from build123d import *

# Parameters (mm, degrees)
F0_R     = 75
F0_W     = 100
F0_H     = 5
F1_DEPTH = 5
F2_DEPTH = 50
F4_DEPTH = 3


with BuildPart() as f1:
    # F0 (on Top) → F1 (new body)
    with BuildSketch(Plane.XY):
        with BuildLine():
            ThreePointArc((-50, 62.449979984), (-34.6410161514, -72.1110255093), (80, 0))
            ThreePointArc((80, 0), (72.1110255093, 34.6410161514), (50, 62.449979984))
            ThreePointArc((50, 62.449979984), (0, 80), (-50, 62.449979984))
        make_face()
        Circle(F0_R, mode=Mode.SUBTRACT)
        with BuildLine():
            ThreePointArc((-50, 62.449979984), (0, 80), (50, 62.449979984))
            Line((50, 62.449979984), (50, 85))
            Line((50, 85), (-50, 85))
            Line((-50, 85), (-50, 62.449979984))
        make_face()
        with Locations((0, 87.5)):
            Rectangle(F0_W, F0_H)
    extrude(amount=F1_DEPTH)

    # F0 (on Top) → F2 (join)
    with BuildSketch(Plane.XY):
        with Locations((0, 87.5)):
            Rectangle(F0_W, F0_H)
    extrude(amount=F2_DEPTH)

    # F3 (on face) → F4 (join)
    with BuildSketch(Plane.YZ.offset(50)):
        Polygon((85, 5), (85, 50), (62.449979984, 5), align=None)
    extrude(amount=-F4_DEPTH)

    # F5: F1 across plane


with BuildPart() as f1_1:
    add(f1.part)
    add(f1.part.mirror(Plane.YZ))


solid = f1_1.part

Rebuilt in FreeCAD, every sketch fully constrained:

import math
import FreeCAD as App
import Part
import Sketcher

V = App.Vector
Q = App.Units.Quantity


def add_polygon(sketch, points):
    """Adds a closed chain of lines whose ends are joined by coincident constraints."""
    first, n = sketch.GeometryCount, len(points)
    for a, b in zip(points, points[1:] + points[:1]):
        sketch.addGeometry(Part.LineSegment(App.Vector(*a, 0), App.Vector(*b, 0)), False)
    for i in range(n):
        sketch.addConstraint(Sketcher.Constraint("Coincident", first + i, 2, first + (i + 1) % n, 1))

doc = App.newDocument("Part")
params = doc.addObject("Spreadsheet::Sheet", "Params")
for row, (alias, value) in enumerate([
    ("sketch1_diameter", "150 mm"),
    ("sketch1_radius", "80 mm"),
    ("sketch1_width", "100 mm"),
    ("pad1_length", "5 mm"),
    ("sketch2_width", "100 mm"),
    ("sketch2_height", "5 mm"),
    ("pad2_length", "50 mm"),
    ("sketch3_height", "45 mm"),
    ("pad3_length", "3 mm"),
], start=1):
    params.set(f"A{row}", alias)
    params.set(f"B{row}", "=" + value)
    params.setAlias(f"B{row}", alias)

body = doc.addObject("PartDesign::Body", "Body")

sketch1 = body.newObject("Sketcher::SketchObject", "Sketch")
sketch1.AttachmentSupport = (doc.getObject("XY_Plane"), [""])
sketch1.MapMode = "FlatFace"
sketch1.addGeometry([
    Part.LineSegment(V(50, 62.44998, 0), V(50, 90, 0)),
    Part.LineSegment(V(50, 90, 0), V(-50, 90, 0)),
    Part.LineSegment(V(-50, 90, 0), V(-50, 62.44998, 0)),
    Part.ArcOfCircle(Part.Circle(V(0, 0, 0), V(0, 0, 1), 80), math.radians(128.682187), math.radians(411.317813)),
    Part.Circle(V(0, 0, 0), V(0, 0, 1), 75),
], False)
sketch1.addConstraint([
    Sketcher.Constraint("Coincident", 0, 2, 1, 1),
    Sketcher.Constraint("Coincident", 1, 2, 2, 1),
    Sketcher.Constraint("Coincident", 2, 2, 3, 1),
    Sketcher.Constraint("Coincident", 3, 2, 0, 1),
    Sketcher.Constraint("Vertical", 0),
    Sketcher.Constraint("Horizontal", 1),
    Sketcher.Constraint("Vertical", 2),
    Sketcher.Constraint("Coincident", 3, 3, -1, 1),
    Sketcher.Constraint("Coincident", 4, 3, -1, 1),
    Sketcher.Constraint("Horizontal", 2, 2, 3, 2),
    Sketcher.Constraint("Diameter", 4, Q("150 mm")),
    Sketcher.Constraint("Radius", 3, Q("80 mm")),
    Sketcher.Constraint("DistanceX", 1, 2, 1, 1, Q("100 mm")),
    Sketcher.Constraint("DistanceY", -1, 1, 0, 2, Q("90 mm")),
])
sketch1.setExpression("Constraints[10]", "Params.sketch1_diameter")
sketch1.setExpression("Constraints[11]", "Params.sketch1_radius")
sketch1.setExpression("Constraints[12]", "Params.sketch1_width")
pad1 = body.newObject("PartDesign::Pad", "Pad")
pad1.Profile = sketch1
pad1.setExpression("Length", "Params.pad1_length")

sketch2 = body.newObject("Sketcher::SketchObject", "Sketch001")
sketch2.AttachmentSupport = (doc.getObject("XY_Plane"), [""])
sketch2.MapMode = "FlatFace"
add_polygon(sketch2, [(-50, 90), (-50, 85), (50, 85), (50, 90)])
sketch2.addConstraint([
    Sketcher.Constraint("Vertical", 0),
    Sketcher.Constraint("Horizontal", 1),
    Sketcher.Constraint("Vertical", 2),
    Sketcher.Constraint("Horizontal", 3),
    Sketcher.Constraint("DistanceX", 1, 1, 1, 2, Q("100 mm")),
    Sketcher.Constraint("DistanceY", 0, 2, 0, 1, Q("5 mm")),
    Sketcher.Constraint("DistanceX", 0, 2, -1, 1, Q("50 mm")),
    Sketcher.Constraint("DistanceY", -1, 1, 0, 2, Q("85 mm")),
])
sketch2.setExpression("Constraints[8]", "Params.sketch2_width")
sketch2.setExpression("Constraints[9]", "Params.sketch2_height")
pad2 = body.newObject("PartDesign::Pad", "Pad001")
pad2.Profile = sketch2
pad2.setExpression("Length", "Params.pad2_length")

sketch3 = body.newObject("Sketcher::SketchObject", "Sketch002")
sketch3.AttachmentSupport = (doc.getObject("YZ_Plane"), [""])
sketch3.MapMode = "FlatFace"
sketch3.AttachmentOffset = App.Placement(V(0, 0, 50), App.Rotation())
add_polygon(sketch3, [(85, 5), (85, 50), (62.44998, 5)])
sketch3.addConstraint([
    Sketcher.Constraint("Vertical", 0),
    Sketcher.Constraint("Horizontal", 2),
    Sketcher.Constraint("DistanceY", 0, 1, 0, 2, Q("45 mm")),
    Sketcher.Constraint("DistanceX", -1, 1, 0, 2, Q("85 mm")),
    Sketcher.Constraint("DistanceY", -1, 1, 0, 2, Q("50 mm")),
    Sketcher.Constraint("DistanceX", 2, 1, 2, 2, Q("22.55002 mm")),
])
sketch3.setExpression("Constraints[5]", "Params.sketch3_height")
pad3 = body.newObject("PartDesign::Pad", "Pad002")
pad3.Profile = sketch3
pad3.setExpression("Length", "Params.pad3_length")
pad3.Reversed = True
body2 = doc.addObject("PartDesign::Body", "Body001")
doc.recompute()

body2.BaseFeature = body
doc.recompute()

mirroring = doc.addObject("Part::Mirroring", "Mirroring")
mirroring.Source = body
mirroring.Base = V(0, 0, 0)
mirroring.Normal = V(1, 0, 0)
body3 = doc.addObject("PartDesign::Body", "Body002")
body3.BaseFeature = mirroring
boolean = body2.newObject("PartDesign::Boolean", "Boolean")
boolean.Type = "Fuse"
boolean.addObjects([body3])
doc.recompute()
mirroring.Visibility = False

doc.recompute()
